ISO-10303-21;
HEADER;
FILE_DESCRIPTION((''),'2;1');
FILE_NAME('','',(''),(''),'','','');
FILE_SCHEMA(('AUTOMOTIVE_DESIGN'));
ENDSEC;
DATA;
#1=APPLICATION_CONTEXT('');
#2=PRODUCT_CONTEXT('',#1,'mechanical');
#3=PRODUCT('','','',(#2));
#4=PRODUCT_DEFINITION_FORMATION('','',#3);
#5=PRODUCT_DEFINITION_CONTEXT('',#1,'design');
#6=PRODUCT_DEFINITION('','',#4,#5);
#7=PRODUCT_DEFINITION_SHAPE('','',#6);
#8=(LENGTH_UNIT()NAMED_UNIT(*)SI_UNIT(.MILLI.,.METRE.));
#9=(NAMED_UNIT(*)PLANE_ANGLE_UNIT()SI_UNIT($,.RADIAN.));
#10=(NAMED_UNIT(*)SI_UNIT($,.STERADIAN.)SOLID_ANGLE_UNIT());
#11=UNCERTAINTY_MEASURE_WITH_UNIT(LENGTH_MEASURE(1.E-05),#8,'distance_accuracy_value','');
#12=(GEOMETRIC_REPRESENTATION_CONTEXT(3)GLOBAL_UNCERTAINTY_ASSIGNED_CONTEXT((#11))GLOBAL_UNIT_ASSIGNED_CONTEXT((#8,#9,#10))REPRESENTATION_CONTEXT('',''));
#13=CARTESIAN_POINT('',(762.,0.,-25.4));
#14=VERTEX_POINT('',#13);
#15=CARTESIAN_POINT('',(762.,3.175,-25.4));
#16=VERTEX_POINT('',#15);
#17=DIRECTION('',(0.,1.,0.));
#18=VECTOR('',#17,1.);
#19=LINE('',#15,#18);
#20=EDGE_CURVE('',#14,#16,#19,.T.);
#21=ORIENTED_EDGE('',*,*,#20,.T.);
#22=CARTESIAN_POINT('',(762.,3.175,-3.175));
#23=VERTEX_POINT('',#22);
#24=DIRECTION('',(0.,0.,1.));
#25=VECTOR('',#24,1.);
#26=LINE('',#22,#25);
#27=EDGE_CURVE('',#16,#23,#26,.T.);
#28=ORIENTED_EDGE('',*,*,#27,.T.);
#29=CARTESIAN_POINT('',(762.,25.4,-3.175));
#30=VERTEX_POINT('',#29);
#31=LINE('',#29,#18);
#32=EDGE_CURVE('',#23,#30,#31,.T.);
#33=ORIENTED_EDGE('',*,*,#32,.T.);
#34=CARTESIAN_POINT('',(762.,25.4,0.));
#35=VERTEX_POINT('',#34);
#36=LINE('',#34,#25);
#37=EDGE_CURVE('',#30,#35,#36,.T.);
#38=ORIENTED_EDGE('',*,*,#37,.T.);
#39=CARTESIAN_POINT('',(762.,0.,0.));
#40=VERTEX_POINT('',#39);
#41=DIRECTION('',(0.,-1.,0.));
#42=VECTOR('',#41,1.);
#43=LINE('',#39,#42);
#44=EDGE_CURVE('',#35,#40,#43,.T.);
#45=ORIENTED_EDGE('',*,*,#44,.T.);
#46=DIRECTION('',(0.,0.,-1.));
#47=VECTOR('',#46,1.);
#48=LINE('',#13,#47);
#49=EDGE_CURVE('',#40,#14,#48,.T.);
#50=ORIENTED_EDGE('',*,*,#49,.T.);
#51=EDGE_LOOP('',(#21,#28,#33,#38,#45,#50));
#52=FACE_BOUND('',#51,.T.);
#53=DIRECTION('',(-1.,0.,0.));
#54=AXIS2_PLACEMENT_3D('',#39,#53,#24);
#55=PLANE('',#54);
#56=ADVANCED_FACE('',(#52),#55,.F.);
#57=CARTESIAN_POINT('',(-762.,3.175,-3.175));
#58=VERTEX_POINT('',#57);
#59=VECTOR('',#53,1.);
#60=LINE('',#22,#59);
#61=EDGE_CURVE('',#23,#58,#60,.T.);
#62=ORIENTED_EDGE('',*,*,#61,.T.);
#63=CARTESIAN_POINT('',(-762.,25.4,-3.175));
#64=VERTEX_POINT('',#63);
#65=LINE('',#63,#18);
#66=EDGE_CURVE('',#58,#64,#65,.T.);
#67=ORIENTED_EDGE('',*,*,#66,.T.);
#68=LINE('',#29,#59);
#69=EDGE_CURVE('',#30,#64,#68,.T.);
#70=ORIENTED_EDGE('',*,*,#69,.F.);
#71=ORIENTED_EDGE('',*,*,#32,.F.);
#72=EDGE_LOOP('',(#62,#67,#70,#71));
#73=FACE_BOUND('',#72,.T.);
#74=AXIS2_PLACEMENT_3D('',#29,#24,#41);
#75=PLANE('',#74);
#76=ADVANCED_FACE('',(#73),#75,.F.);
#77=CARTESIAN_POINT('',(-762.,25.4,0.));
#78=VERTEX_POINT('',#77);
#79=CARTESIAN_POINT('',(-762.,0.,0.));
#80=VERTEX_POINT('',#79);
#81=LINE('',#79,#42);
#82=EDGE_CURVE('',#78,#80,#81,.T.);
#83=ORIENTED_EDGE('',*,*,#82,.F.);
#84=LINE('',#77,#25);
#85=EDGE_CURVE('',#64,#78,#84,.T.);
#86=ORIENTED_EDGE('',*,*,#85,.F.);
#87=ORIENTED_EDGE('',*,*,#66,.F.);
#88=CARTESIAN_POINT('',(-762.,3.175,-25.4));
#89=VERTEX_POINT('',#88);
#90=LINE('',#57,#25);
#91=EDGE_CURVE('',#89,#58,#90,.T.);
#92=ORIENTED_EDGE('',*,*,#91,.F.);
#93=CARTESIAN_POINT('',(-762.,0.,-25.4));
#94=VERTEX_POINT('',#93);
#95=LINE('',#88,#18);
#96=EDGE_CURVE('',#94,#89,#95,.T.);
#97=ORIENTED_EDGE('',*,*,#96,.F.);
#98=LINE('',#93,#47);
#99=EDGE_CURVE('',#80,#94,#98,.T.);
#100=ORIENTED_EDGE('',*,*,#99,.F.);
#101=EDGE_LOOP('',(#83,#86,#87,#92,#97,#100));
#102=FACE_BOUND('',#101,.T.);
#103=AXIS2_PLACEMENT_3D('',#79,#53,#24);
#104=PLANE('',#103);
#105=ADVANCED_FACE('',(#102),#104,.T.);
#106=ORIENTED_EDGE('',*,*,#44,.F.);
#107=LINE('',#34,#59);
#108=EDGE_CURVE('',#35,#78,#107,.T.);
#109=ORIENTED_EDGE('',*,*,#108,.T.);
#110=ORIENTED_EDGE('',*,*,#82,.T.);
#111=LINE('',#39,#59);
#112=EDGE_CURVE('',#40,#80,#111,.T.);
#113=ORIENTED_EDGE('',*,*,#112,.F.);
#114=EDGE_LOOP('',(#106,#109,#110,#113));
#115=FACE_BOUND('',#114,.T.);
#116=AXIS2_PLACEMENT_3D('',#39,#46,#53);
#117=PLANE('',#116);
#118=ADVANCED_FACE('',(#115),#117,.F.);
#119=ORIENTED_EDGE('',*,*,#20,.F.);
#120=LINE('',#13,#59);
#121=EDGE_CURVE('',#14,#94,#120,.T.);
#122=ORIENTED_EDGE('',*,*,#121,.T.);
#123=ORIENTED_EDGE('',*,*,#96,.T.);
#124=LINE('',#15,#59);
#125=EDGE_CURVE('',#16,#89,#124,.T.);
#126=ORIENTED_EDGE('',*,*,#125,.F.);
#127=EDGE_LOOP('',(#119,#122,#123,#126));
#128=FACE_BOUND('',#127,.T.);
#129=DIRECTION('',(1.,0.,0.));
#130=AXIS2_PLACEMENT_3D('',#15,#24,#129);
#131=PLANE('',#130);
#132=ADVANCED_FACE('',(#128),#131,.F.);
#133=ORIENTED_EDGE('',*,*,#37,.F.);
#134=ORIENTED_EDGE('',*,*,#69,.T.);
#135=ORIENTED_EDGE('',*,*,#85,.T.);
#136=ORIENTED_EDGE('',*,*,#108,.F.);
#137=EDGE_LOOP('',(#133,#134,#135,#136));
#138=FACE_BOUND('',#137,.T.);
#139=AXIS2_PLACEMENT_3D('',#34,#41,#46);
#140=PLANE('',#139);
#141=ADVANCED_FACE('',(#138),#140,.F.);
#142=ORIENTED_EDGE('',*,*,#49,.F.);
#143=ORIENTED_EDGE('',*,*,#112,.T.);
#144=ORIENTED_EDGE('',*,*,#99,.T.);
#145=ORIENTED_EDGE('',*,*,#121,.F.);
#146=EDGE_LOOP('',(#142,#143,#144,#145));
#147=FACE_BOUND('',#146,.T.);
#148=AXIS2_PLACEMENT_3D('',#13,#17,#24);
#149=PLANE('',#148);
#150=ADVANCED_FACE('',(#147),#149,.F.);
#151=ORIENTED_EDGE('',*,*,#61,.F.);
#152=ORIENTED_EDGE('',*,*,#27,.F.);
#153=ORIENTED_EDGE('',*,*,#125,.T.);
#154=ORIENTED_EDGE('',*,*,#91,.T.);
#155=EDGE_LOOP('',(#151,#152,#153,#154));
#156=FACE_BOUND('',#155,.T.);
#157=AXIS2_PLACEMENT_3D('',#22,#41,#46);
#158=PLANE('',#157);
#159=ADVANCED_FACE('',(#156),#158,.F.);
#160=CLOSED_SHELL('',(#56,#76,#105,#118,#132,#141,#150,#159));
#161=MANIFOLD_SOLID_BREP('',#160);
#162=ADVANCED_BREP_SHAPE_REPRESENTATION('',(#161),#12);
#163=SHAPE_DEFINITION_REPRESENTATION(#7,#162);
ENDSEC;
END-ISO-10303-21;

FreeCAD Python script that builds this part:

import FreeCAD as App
import Part
import Sketcher
from FreeCAD import Vector
Q = App.Units.Quantity


def add_polygon(sketch, points):
    """Adds a closed chain of lines whose ends are joined by coincident constraints."""
    first, n = sketch.GeometryCount, len(points)
    for a, b in zip(points, points[1:] + points[:1]):
        sketch.addGeometry(Part.LineSegment(App.Vector(*a, 0), App.Vector(*b, 0)), False)
    for i in range(n):
        sketch.addConstraint(Sketcher.Constraint("Coincident", first + i, 2, first + (i + 1) % n, 1))

doc = App.newDocument("Part")
body = doc.addObject("PartDesign::Body", "Body")

# Sketch on YZ plane
sketch1 = body.newObject("Sketcher::SketchObject", "Sketch")
sketch1.AttachmentSupport = (doc.getObject("YZ_Plane"), [""])
sketch1.MapMode = "FlatFace"
add_polygon(sketch1, [(25.4, 0), (0, 0), (0, -25.4), (3.175, -25.4), (3.175, -3.175), (25.4, -3.175)])  # lines 0-5
sketch1.addConstraint(Sketcher.Constraint("Horizontal", 0))
sketch1.addConstraint(Sketcher.Constraint("Vertical", 1))
sketch1.addConstraint(Sketcher.Constraint("Horizontal", 2))
sketch1.addConstraint(Sketcher.Constraint("Vertical", 3))
sketch1.addConstraint(Sketcher.Constraint("Horizontal", 4))
sketch1.addConstraint(Sketcher.Constraint("Vertical", 5))
sketch1.addConstraint(Sketcher.Constraint("Coincident", 0, 2, -1, 1))
sketch1.addConstraint(Sketcher.Constraint("Equal", 0, 1))
sketch1.addConstraint(Sketcher.Constraint("Equal", 4, 3))
sketch1.addConstraint(Sketcher.Constraint("DistanceX", 0, 2, 0, 1, Q("1 in")))
sketch1.addConstraint(Sketcher.Constraint("DistanceX", 2, 1, 2, 2, Q("0.125 in")))
pad1 = body.newObject("PartDesign::Pad", "Pad")
pad1.Profile = sketch1
pad1.Length = Q("60 in")
pad1.Midplane = True

doc.recompute()
